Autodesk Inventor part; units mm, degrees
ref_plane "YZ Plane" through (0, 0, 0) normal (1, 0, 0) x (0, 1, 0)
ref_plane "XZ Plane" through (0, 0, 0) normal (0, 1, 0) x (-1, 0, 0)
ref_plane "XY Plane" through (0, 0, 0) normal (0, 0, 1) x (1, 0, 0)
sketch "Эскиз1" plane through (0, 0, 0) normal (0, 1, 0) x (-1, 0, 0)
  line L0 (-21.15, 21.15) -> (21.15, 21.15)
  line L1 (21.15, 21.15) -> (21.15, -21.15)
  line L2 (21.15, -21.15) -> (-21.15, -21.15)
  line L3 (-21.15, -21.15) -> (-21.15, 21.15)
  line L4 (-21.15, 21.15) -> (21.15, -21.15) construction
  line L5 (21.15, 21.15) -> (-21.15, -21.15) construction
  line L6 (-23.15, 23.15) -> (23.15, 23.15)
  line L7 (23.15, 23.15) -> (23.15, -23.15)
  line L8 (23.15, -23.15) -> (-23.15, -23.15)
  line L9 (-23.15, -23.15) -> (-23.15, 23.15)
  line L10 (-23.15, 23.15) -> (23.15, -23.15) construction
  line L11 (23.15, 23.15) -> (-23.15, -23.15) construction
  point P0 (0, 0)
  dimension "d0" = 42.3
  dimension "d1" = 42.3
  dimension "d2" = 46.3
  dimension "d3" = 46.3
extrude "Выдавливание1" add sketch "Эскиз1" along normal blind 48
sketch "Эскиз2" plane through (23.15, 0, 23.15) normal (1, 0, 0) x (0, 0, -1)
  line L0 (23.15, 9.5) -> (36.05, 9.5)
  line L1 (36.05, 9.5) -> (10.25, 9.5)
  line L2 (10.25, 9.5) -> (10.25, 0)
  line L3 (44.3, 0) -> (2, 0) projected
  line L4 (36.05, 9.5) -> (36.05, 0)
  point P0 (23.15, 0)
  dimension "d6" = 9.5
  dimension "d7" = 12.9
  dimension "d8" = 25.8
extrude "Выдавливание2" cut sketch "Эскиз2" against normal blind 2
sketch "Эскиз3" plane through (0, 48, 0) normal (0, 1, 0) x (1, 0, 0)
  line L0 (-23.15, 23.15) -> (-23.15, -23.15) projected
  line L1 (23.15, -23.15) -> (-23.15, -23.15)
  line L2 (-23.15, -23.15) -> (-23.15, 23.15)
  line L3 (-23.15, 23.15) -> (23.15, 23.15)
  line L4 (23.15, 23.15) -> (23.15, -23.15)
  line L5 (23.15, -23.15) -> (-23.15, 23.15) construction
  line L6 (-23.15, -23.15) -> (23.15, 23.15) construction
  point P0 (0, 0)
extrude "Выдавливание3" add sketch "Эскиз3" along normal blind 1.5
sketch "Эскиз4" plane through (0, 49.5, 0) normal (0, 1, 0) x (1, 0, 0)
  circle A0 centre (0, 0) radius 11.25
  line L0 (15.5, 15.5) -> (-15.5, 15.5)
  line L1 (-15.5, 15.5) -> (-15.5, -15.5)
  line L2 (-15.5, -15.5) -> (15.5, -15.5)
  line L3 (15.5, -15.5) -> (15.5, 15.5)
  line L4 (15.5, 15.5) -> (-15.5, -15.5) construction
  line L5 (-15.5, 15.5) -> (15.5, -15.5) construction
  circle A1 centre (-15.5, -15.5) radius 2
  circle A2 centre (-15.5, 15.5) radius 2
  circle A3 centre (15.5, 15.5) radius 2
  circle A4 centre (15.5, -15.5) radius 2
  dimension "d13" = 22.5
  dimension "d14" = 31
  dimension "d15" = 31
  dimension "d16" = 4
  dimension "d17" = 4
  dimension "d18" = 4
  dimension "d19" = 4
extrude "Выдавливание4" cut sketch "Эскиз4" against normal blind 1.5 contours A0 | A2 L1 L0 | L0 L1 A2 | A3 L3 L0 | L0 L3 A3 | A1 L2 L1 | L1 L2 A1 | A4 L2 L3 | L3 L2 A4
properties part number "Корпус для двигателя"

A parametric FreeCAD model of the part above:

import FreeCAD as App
import Part
import Sketcher
Q = App.Units.Quantity

doc = App.newDocument("Part")
body = doc.addObject("PartDesign::Body", "Body")

sketch1 = doc.addObject("Sketcher::SketchObject", "Sketch")
body.addObject(sketch1)
sketch1.AttachmentSupport = (doc.XZ_Plane, [""])
sketch1.MapMode = "FlatFace"
sketch1.addGeometry(Part.LineSegment(App.Vector(-23.15, 23.15, 0), App.Vector(23.15, 23.15, 0)), False)
sketch1.addGeometry(Part.LineSegment(App.Vector(23.15, 23.15, 0), App.Vector(23.15, -23.15, 0)), False)
sketch1.addGeometry(Part.LineSegment(App.Vector(23.15, -23.15, 0), App.Vector(-23.15, -23.15, 0)), False)
sketch1.addGeometry(Part.LineSegment(App.Vector(-23.15, -23.15, 0), App.Vector(-23.15, 23.15, 0)), False)
sketch1.addGeometry(Part.LineSegment(App.Vector(21.15, -21.15, 0), App.Vector(21.15, 21.15, 0)), False)
sketch1.addGeometry(Part.LineSegment(App.Vector(21.15, 21.15, 0), App.Vector(-21.15, 21.15, 0)), False)
sketch1.addGeometry(Part.LineSegment(App.Vector(-21.15, 21.15, 0), App.Vector(-21.15, -21.15, 0)), False)
sketch1.addGeometry(Part.LineSegment(App.Vector(-21.15, -21.15, 0), App.Vector(21.15, -21.15, 0)), False)
sketch1.addConstraint(Sketcher.Constraint("Coincident", 0, 2, 1, 1))
sketch1.addConstraint(Sketcher.Constraint("Coincident", 1, 2, 2, 1))
sketch1.addConstraint(Sketcher.Constraint("Coincident", 2, 2, 3, 1))
sketch1.addConstraint(Sketcher.Constraint("Coincident", 3, 2, 0, 1))
sketch1.addConstraint(Sketcher.Constraint("Coincident", 4, 2, 5, 1))
sketch1.addConstraint(Sketcher.Constraint("Coincident", 5, 2, 6, 1))
sketch1.addConstraint(Sketcher.Constraint("Coincident", 6, 2, 7, 1))
sketch1.addConstraint(Sketcher.Constraint("Coincident", 7, 2, 4, 1))
sketch1.addConstraint(Sketcher.Constraint("Horizontal", 0))
sketch1.addConstraint(Sketcher.Constraint("Vertical", 1))
sketch1.addConstraint(Sketcher.Constraint("Horizontal", 2))
sketch1.addConstraint(Sketcher.Constraint("Vertical", 3))
sketch1.addConstraint(Sketcher.Constraint("Vertical", 4))
sketch1.addConstraint(Sketcher.Constraint("Horizontal", 5))
sketch1.addConstraint(Sketcher.Constraint("Vertical", 6))
sketch1.addConstraint(Sketcher.Constraint("Horizontal", 7))
sketch1.addConstraint(Sketcher.Constraint("Symmetric", 0, 2, 2, 2, -1, 1))
sketch1.addConstraint(Sketcher.Constraint("Symmetric", 4, 2, 6, 2, -1, 1))
sketch1.addConstraint(Sketcher.Constraint("Equal", 2, 1))
sketch1.addConstraint(Sketcher.Constraint("Equal", 7, 4))
sketch1.addConstraint(Sketcher.Constraint("DistanceX", 0, 1, 0, 2, Q("46.3 mm")))
sketch1.addConstraint(Sketcher.Constraint("DistanceX", 5, 2, 5, 1, Q("42.3 mm")))
pad1 = doc.addObject("PartDesign::Pad", "Pad")
body.addObject(pad1)
pad1.Profile = sketch1
pad1.Length = 48
pad1.Reversed = True

sketch2 = doc.addObject("Sketcher::SketchObject", "Sketch001")
body.addObject(sketch2)
sketch2.AttachmentSupport = (doc.YZ_Plane, [""])
sketch2.MapMode = "FlatFace"
sketch2.AttachmentOffset = App.Placement(App.Vector(0, 0, 23.15), App.Rotation())
sketch2.addGeometry(Part.LineSegment(App.Vector(9.5, -12.9, 0), App.Vector(9.5, 12.9, 0)), False)
sketch2.addGeometry(Part.LineSegment(App.Vector(9.5, 12.9, 0), App.Vector(0, 12.9, 0)), False)
sketch2.addGeometry(Part.LineSegment(App.Vector(0, 12.9, 0), App.Vector(0, -12.9, 0)), False)
sketch2.addGeometry(Part.LineSegment(App.Vector(0, -12.9, 0), App.Vector(9.5, -12.9, 0)), False)
sketch2.addConstraint(Sketcher.Constraint("Coincident", 0, 2, 1, 1))
sketch2.addConstraint(Sketcher.Constraint("Coincident", 1, 2, 2, 1))
sketch2.addConstraint(Sketcher.Constraint("Coincident", 2, 2, 3, 1))
sketch2.addConstraint(Sketcher.Constraint("Coincident", 3, 2, 0, 1))
sketch2.addConstraint(Sketcher.Constraint("Vertical", 0))
sketch2.addConstraint(Sketcher.Constraint("Horizontal", 1))
sketch2.addConstraint(Sketcher.Constraint("Vertical", 2))
sketch2.addConstraint(Sketcher.Constraint("Horizontal", 3))
sketch2.addConstraint(Sketcher.Constraint("Symmetric", 1, 2, 2, 2, -1, 1))
sketch2.addConstraint(Sketcher.Constraint("DistanceX", 1, 2, 1, 1, Q("9.5 mm")))
sketch2.addConstraint(Sketcher.Constraint("DistanceY", 0, 1, 0, 2, Q("25.8 mm")))
pocket1 = doc.addObject("PartDesign::Pocket", "Pocket")
body.addObject(pocket1)
pocket1.Profile = sketch2
pocket1.Length = 2

sketch3 = doc.addObject("Sketcher::SketchObject", "Sketch002")
body.addObject(sketch3)
sketch3.AttachmentSupport = (doc.XZ_Plane, [""])
sketch3.MapMode = "FlatFace"
sketch3.AttachmentOffset = App.Placement(App.Vector(0, 0, -48), App.Rotation())
sketch3.addGeometry(Part.LineSegment(App.Vector(23.15, -23.15, 0), App.Vector(-23.15, -23.15, 0)), False)
sketch3.addGeometry(Part.LineSegment(App.Vector(-23.15, -23.15, 0), App.Vector(-23.15, 23.15, 0)), False)
sketch3.addGeometry(Part.LineSegment(App.Vector(-23.15, 23.15, 0), App.Vector(23.15, 23.15, 0)), False)
sketch3.addGeometry(Part.LineSegment(App.Vector(23.15, 23.15, 0), App.Vector(23.15, -23.15, 0)), False)
sketch3.addConstraint(Sketcher.Constraint("Coincident", 0, 2, 1, 1))
sketch3.addConstraint(Sketcher.Constraint("Coincident", 1, 2, 2, 1))
sketch3.addConstraint(Sketcher.Constraint("Coincident", 2, 2, 3, 1))
sketch3.addConstraint(Sketcher.Constraint("Coincident", 3, 2, 0, 1))
sketch3.addConstraint(Sketcher.Constraint("Horizontal", 0))
sketch3.addConstraint(Sketcher.Constraint("Vertical", 1))
sketch3.addConstraint(Sketcher.Constraint("Horizontal", 2))
sketch3.addConstraint(Sketcher.Constraint("Vertical", 3))
sketch3.addConstraint(Sketcher.Constraint("Symmetric", 0, 2, 2, 2, -1, 1))
sketch3.addConstraint(Sketcher.Constraint("Equal", 2, 1))
sketch3.addConstraint(Sketcher.Constraint("DistanceX", 0, 2, 0, 1, Q("46.3 mm")))
pad2 = doc.addObject("PartDesign::Pad", "Pad001")
body.addObject(pad2)
pad2.Profile = sketch3
pad2.Length = 1.5
pad2.Reversed = True

sketch4 = doc.addObject("Sketcher::SketchObject", "Sketch003")
body.addObject(sketch4)
sketch4.AttachmentSupport = (doc.XZ_Plane, [""])
sketch4.MapMode = "FlatFace"
sketch4.AttachmentOffset = App.Placement(App.Vector(0, 0, -49.5), App.Rotation())
sketch4.addGeometry(Part.Circle(App.Vector(0, 0, 0), App.Vector(0, 0, 1), 11.25), False)
sketch4.addGeometry(Part.Circle(App.Vector(-15.5, -15.5, 0), App.Vector(0, 0, 1), 2), False)
sketch4.addGeometry(Part.Circle(App.Vector(15.5, -15.5, 0), App.Vector(0, 0, 1), 2), False)
sketch4.addGeometry(Part.Circle(App.Vector(-15.5, 15.5, 0), App.Vector(0, 0, 1), 2), False)
sketch4.addGeometry(Part.Circle(App.Vector(15.5, 15.5, 0), App.Vector(0, 0, 1), 2), False)
sketch4.addConstraint(Sketcher.Constraint("Coincident", 0, 3, -1, 1))
sketch4.addConstraint(Sketcher.Constraint("Equal", 1, 2))
sketch4.addConstraint(Sketcher.Constraint("Equal", 2, 3))
sketch4.addConstraint(Sketcher.Constraint("Equal", 3, 4))
sketch4.addConstraint(Sketcher.Constraint("Symmetric", 2, 3, 3, 3, -1, 1))
sketch4.addConstraint(Sketcher.Constraint("Symmetric", 1, 3, 4, 3, -1, 1))
sketch4.addConstraint(Sketcher.Constraint("Symmetric", 1, 3, 2, 3, -2))
sketch4.addConstraint(Sketcher.Constraint("Diameter", 1, Q("4 mm")))
sketch4.addConstraint(Sketcher.Constraint("Diameter", 0, Q("22.5 mm")))
sketch4.addConstraint(Sketcher.Constraint("DistanceX", 1, 3, 2, 3, Q("31 mm")))
sketch4.addConstraint(Sketcher.Constraint("DistanceY", 1, 3, 3, 3, Q("31 mm")))
pocket2 = doc.addObject("PartDesign::Pocket", "Pocket001")
body.addObject(pocket2)
pocket2.Profile = sketch4
pocket2.Length = 1.5
pocket2.Reversed = True

doc.recompute()
